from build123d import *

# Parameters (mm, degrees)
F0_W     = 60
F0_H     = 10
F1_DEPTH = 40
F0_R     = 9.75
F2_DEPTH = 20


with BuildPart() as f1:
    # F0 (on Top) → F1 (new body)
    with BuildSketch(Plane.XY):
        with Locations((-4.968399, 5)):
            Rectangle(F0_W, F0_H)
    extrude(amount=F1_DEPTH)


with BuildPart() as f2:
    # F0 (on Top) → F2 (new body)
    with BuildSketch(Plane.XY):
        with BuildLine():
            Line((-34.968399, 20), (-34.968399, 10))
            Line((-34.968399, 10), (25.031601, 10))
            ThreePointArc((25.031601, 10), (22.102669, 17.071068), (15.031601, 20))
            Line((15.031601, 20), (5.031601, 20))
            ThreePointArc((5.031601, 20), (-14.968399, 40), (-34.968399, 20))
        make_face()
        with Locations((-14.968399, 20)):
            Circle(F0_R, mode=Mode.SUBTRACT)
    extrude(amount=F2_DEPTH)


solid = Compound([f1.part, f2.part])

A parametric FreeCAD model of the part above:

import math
import FreeCAD as App
import Part
import Sketcher
Q = App.Units.Quantity


def add_polygon(sketch, points):
    """Adds a closed chain of lines whose ends are joined by coincident constraints."""
    first, n = sketch.GeometryCount, len(points)
    for a, b in zip(points, points[1:] + points[:1]):
        sketch.addGeometry(Part.LineSegment(App.Vector(*a, 0), App.Vector(*b, 0)), False)
    for i in range(n):
        sketch.addConstraint(Sketcher.Constraint("Coincident", first + i, 2, first + (i + 1) % n, 1))

doc = App.newDocument("Part")
body = doc.addObject("PartDesign::Body", "Body")

# Sketch on XY plane
sketch1 = doc.addObject("Sketcher::SketchObject", "Sketch")
body.addObject(sketch1)
sketch1.AttachmentSupport = (doc.XY_Plane, [""])
sketch1.MapMode = "FlatFace"
add_polygon(sketch1, [(-35, 10), (-35, 0), (25, 0), (25, 10)])  # lines 0-3
sketch1.addConstraint([
    Sketcher.Constraint("Vertical", 0),
    Sketcher.Constraint("Horizontal", 1),
    Sketcher.Constraint("Vertical", 2),
    Sketcher.Constraint("Horizontal", 3),
    Sketcher.Constraint("PointOnObject", 0, 2, -1),
    Sketcher.Constraint("DistanceX", 1, 1, 1, 2, Q("60 mm")),
    Sketcher.Constraint("DistanceY", 0, 2, 0, 1, Q("10 mm")),
    Sketcher.Constraint("DistanceX", 0, 2, -1, 1, Q("34.968399 mm")),
])
pad1 = doc.addObject("PartDesign::Pad", "Pad")
body.addObject(pad1)
pad1.Profile = sketch1
pad1.Length = 40
body2 = doc.addObject("PartDesign::Body", "Body001")

# Sketch on XY plane
sketch2 = doc.addObject("Sketcher::SketchObject", "Sketch001")
body2.addObject(sketch2)
sketch2.AttachmentSupport = (doc.getObject("XY_Plane001"), [""])
sketch2.MapMode = "FlatFace"
sketch2.addGeometry([
    Part.LineSegment(App.Vector(-35, 20, 0), App.Vector(-35, 10, 0)),  # 0
    Part.LineSegment(App.Vector(-35, 10, 0), App.Vector(25, 10, 0)),  # 1
    Part.ArcOfCircle(Part.Circle(App.Vector(15, 10, 0), App.Vector(0, 0, 1), 10), math.radians(0), math.radians(90)),  # 2
    Part.LineSegment(App.Vector(15, 20, 0), App.Vector(5, 20, 0)),  # 3
    Part.ArcOfCircle(Part.Circle(App.Vector(-15, 20, 0), App.Vector(0, 0, 1), 20), math.radians(0), math.radians(180)),  # 4
    Part.Circle(App.Vector(-15, 20, 0), App.Vector(0, 0, 1), 10),  # 5
], False)
sketch2.addConstraint([
    Sketcher.Constraint("Coincident", 0, 2, 1, 1),
    Sketcher.Constraint("Coincident", 1, 2, 2, 1),
    Sketcher.Constraint("Tangent", 2, 2, 3, 1),
    Sketcher.Constraint("Coincident", 3, 2, 4, 1),
    Sketcher.Constraint("Tangent", 4, 2, 0, 1),
    Sketcher.Constraint("Vertical", 0),
    Sketcher.Constraint("Horizontal", 1),
    Sketcher.Constraint("Horizontal", 3),
    Sketcher.Constraint("Coincident", 5, 3, 4, 3),
    Sketcher.Constraint("Horizontal", 2, 3, 0, 2),
    Sketcher.Constraint("Horizontal", 5, 3, 2, 2),
    Sketcher.Constraint("Equal", 3, 0),
    Sketcher.Constraint("Radius", 2, Q("9.999999 mm")),
    Sketcher.Constraint("Radius", 4, Q("20 mm")),
    Sketcher.Constraint("Diameter", 5, Q("19.5 mm")),
    Sketcher.Constraint("DistanceY", -1, 1, 2, 3, Q("10.000001 mm")),
    Sketcher.Constraint("DistanceX", -1, 1, 2, 3, Q("15.031602 mm")),
])
pad2 = doc.addObject("PartDesign::Pad", "Pad001")
body2.addObject(pad2)
pad2.Profile = sketch2
pad2.Length = 20

doc.recompute()
